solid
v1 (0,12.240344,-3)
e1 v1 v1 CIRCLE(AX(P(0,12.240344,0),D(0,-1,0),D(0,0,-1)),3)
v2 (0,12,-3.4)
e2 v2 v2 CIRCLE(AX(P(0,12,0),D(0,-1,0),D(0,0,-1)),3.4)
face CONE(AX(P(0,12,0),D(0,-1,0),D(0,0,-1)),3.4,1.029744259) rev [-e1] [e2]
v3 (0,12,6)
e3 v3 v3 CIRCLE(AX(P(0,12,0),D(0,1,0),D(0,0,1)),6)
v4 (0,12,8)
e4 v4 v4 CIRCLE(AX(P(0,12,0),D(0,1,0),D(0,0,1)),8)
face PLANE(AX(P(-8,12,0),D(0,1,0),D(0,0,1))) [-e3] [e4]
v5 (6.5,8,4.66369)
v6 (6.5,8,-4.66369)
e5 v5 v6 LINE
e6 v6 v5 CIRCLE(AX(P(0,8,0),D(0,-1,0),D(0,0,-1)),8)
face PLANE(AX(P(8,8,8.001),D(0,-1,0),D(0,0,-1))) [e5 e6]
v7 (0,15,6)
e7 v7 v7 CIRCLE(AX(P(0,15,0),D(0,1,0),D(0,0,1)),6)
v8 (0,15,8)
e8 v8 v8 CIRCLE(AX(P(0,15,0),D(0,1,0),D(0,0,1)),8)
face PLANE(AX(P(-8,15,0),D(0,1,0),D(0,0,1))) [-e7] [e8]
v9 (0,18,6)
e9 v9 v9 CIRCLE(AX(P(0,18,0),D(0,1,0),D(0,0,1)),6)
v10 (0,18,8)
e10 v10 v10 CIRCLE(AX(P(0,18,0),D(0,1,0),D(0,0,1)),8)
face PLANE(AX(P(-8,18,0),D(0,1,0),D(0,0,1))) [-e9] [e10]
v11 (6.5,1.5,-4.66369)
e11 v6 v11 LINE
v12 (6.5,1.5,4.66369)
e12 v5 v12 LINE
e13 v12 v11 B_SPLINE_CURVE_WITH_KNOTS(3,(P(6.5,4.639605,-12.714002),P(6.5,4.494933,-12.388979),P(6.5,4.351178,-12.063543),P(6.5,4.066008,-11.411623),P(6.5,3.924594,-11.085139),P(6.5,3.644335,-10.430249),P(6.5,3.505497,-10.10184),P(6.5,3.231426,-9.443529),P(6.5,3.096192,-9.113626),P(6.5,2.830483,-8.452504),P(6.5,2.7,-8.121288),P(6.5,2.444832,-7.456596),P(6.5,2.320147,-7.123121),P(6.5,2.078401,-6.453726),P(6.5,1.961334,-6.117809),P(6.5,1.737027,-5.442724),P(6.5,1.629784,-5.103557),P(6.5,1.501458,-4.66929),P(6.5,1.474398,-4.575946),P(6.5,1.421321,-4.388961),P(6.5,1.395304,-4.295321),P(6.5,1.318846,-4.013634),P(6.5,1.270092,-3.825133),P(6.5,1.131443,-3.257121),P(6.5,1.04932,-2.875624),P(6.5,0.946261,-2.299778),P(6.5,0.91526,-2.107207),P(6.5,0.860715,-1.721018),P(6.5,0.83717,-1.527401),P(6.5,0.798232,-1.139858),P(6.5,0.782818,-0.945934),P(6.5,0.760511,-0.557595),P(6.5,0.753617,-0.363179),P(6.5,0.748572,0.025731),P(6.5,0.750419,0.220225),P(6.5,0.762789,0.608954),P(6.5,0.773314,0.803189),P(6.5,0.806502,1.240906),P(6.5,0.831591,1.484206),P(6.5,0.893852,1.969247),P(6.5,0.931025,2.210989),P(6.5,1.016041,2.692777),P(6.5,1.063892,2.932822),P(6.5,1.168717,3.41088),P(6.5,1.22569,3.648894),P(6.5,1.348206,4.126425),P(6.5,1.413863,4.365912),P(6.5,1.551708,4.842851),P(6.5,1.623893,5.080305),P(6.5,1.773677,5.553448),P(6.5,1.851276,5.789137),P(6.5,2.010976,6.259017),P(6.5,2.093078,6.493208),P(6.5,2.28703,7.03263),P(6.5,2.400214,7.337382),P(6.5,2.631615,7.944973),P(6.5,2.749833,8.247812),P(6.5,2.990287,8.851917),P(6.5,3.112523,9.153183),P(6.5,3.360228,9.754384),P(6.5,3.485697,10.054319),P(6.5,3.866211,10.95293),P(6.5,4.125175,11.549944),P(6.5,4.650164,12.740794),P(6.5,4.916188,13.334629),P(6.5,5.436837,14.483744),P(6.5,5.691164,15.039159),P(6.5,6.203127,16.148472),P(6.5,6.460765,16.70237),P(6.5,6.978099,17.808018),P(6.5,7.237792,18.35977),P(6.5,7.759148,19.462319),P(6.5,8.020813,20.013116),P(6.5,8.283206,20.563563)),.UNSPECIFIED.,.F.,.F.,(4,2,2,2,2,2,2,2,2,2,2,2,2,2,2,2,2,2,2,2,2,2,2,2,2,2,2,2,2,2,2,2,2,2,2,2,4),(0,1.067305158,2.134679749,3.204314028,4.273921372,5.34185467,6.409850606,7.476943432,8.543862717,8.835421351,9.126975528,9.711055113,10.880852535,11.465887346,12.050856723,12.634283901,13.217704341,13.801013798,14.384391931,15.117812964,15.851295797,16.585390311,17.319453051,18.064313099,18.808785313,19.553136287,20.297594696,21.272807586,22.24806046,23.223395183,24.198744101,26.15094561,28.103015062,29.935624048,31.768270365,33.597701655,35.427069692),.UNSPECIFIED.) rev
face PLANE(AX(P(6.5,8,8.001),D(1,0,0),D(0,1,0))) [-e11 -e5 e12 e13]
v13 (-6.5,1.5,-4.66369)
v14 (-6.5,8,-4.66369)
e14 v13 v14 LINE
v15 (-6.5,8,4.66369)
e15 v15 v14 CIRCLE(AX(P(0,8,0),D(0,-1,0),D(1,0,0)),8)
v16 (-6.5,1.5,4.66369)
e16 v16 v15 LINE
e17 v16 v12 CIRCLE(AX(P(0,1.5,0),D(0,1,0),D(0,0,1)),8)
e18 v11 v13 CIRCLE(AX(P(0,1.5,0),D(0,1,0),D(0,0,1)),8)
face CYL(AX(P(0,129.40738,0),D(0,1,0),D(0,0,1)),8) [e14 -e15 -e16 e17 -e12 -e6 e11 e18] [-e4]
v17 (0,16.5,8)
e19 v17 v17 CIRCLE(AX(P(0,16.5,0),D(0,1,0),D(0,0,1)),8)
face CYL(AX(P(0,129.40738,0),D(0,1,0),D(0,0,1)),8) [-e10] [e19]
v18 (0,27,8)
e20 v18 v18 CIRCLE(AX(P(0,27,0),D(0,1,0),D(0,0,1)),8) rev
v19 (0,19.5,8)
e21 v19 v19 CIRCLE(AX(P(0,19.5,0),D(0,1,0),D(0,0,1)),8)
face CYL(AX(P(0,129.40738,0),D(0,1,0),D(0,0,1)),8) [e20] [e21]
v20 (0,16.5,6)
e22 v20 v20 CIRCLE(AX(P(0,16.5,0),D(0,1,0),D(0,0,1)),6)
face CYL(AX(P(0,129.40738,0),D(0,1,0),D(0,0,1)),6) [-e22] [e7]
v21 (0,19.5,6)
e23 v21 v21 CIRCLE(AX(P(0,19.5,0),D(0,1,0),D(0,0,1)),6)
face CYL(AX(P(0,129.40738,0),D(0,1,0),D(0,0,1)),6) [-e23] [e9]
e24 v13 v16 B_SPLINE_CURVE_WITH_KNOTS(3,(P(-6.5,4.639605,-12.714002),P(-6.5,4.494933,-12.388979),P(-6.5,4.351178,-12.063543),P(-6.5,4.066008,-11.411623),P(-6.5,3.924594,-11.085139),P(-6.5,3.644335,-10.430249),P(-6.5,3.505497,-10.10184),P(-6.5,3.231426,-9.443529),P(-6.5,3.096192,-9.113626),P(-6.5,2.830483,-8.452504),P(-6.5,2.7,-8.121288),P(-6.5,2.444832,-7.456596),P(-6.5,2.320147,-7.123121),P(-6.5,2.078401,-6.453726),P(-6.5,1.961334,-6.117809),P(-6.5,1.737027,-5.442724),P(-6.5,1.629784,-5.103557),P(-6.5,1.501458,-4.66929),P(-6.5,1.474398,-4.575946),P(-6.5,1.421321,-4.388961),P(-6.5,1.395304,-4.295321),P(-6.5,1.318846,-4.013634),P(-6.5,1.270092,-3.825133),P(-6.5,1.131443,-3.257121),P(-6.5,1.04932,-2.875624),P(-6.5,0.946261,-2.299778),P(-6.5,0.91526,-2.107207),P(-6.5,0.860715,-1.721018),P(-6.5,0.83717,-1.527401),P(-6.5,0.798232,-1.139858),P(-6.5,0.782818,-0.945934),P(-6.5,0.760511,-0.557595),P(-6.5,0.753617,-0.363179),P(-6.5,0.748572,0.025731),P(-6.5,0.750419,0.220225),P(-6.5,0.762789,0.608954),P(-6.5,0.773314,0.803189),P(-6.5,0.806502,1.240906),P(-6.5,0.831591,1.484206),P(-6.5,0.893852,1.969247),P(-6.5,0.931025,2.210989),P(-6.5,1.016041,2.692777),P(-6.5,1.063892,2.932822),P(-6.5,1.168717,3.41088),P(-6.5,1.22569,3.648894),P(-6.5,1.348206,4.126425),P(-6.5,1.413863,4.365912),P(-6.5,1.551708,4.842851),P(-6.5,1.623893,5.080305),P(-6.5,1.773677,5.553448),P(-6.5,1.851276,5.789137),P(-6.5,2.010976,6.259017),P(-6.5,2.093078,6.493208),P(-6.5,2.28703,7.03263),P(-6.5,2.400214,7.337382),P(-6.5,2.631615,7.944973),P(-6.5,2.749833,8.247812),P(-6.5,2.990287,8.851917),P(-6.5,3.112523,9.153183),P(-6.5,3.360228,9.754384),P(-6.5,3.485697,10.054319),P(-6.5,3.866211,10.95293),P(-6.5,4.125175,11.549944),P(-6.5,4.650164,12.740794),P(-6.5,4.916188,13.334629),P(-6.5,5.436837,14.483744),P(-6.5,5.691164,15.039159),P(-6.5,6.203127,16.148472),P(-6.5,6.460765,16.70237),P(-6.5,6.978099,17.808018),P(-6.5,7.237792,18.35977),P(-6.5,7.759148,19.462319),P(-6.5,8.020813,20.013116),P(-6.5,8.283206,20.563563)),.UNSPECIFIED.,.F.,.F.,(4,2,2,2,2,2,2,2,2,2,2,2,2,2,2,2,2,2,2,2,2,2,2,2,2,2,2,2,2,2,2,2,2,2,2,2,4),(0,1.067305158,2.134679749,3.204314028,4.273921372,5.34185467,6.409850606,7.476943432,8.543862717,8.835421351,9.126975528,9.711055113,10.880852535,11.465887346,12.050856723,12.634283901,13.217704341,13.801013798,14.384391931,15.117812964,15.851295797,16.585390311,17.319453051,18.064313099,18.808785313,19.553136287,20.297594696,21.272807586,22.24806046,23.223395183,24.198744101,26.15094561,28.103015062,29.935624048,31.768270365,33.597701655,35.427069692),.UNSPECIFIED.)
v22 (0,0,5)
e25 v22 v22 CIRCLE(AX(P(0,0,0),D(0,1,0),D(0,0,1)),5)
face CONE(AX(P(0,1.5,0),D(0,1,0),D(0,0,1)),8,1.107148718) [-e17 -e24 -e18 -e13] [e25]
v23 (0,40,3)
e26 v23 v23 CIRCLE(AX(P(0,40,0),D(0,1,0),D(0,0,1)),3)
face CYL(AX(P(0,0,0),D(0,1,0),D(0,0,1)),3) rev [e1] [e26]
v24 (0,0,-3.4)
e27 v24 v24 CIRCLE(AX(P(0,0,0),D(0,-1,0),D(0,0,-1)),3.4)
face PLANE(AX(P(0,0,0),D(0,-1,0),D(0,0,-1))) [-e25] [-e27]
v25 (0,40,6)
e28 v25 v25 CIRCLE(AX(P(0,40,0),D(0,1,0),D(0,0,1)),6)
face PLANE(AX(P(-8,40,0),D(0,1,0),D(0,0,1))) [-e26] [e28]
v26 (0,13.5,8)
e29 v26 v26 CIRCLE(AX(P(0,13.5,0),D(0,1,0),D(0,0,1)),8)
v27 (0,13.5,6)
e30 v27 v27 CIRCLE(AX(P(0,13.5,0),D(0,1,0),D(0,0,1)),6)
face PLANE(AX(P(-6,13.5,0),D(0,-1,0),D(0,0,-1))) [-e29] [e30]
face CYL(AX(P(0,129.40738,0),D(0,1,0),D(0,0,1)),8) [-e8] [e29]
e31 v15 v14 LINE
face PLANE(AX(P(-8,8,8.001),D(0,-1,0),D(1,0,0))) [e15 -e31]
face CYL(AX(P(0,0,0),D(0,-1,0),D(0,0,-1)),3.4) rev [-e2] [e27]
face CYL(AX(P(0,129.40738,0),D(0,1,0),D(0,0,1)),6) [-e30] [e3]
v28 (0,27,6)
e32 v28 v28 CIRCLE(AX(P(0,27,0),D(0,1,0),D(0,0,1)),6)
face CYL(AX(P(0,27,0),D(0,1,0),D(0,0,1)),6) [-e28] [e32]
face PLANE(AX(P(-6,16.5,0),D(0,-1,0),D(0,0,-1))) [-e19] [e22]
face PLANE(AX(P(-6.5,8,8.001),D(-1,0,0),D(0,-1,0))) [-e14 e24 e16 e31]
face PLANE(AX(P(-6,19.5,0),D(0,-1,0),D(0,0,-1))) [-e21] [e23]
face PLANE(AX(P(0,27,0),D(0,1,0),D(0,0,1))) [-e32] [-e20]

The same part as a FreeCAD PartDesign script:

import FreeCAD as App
import Part
import Sketcher
from FreeCAD import Vector

doc = App.newDocument("Part")
body = doc.addObject("PartDesign::Body", "Body")

# Sketch on XY plane
sketch1 = body.newObject("Sketcher::SketchObject", "Sketch")
sketch1.AttachmentSupport = (doc.getObject("XY_Plane"), [""])
sketch1.MapMode = "FlatFace"
sketch1.addGeometry(Part.LineSegment(Vector(-5, 0, 0), Vector(0, 0, 0)), False)
sketch1.addGeometry(Part.LineSegment(Vector(0, 0, 0), Vector(0, 40, 0)), False)
sketch1.addGeometry(Part.LineSegment(Vector(0, 40, 0), Vector(-8, 40, 0)), False)
sketch1.addGeometry(Part.LineSegment(Vector(-8, 40, 0), Vector(-8, 19.5, 0)), False)
sketch1.addGeometry(Part.LineSegment(Vector(-8, 19.5, 0), Vector(-6, 19.5, 0)), False)
sketch1.addGeometry(Part.LineSegment(Vector(-6, 19.5, 0), Vector(-6, 18, 0)), False)
sketch1.addGeometry(Part.LineSegment(Vector(-6, 18, 0), Vector(-8, 18, 0)), False)
sketch1.addGeometry(Part.LineSegment(Vector(-8, 18, 0), Vector(-8, 16.5, 0)), False)
sketch1.addGeometry(Part.LineSegment(Vector(-8, 16.5, 0), Vector(-6, 16.5, 0)), False)
sketch1.addGeometry(Part.LineSegment(Vector(-6, 16.5, 0), Vector(-6, 15, 0)), False)
sketch1.addGeometry(Part.LineSegment(Vector(-6, 15, 0), Vector(-8, 15, 0)), False)
sketch1.addGeometry(Part.LineSegment(Vector(-8, 15, 0), Vector(-8, 13.5, 0)), False)
sketch1.addGeometry(Part.LineSegment(Vector(-8, 13.5, 0), Vector(-6, 13.5, 0)), False)
sketch1.addGeometry(Part.LineSegment(Vector(-6, 13.5, 0), Vector(-6, 12, 0)), False)
sketch1.addGeometry(Part.LineSegment(Vector(-6, 12, 0), Vector(-8, 12, 0)), False)
sketch1.addGeometry(Part.LineSegment(Vector(-8, 12, 0), Vector(-8, 1.5, 0)), False)
sketch1.addGeometry(Part.LineSegment(Vector(-8, 1.5, 0), Vector(-5, 0, 0)), False)
sketch1.addConstraint(Sketcher.Constraint("Coincident", 0, 2, 1, 1))
sketch1.addConstraint(Sketcher.Constraint("Coincident", 1, 2, 2, 1))
sketch1.addConstraint(Sketcher.Constraint("Coincident", 2, 2, 3, 1))
sketch1.addConstraint(Sketcher.Constraint("Coincident", 3, 2, 4, 1))
sketch1.addConstraint(Sketcher.Constraint("Coincident", 4, 2, 5, 1))
sketch1.addConstraint(Sketcher.Constraint("Coincident", 5, 2, 6, 1))
sketch1.addConstraint(Sketcher.Constraint("Coincident", 6, 2, 7, 1))
sketch1.addConstraint(Sketcher.Constraint("Coincident", 7, 2, 8, 1))
sketch1.addConstraint(Sketcher.Constraint("Coincident", 8, 2, 9, 1))
sketch1.addConstraint(Sketcher.Constraint("Coincident", 9, 2, 10, 1))
sketch1.addConstraint(Sketcher.Constraint("Coincident", 10, 2, 11, 1))
sketch1.addConstraint(Sketcher.Constraint("Coincident", 11, 2, 12, 1))
sketch1.addConstraint(Sketcher.Constraint("Coincident", 12, 2, 13, 1))
sketch1.addConstraint(Sketcher.Constraint("Coincident", 13, 2, 14, 1))
sketch1.addConstraint(Sketcher.Constraint("Coincident", 14, 2, 15, 1))
sketch1.addConstraint(Sketcher.Constraint("Coincident", 15, 2, 16, 1))
sketch1.addConstraint(Sketcher.Constraint("Coincident", 16, 2, 0, 1))
sketch1.addConstraint(Sketcher.Constraint("Horizontal", 0))
sketch1.addConstraint(Sketcher.Constraint("Vertical", 1))
sketch1.addConstraint(Sketcher.Constraint("Horizontal", 2))
sketch1.addConstraint(Sketcher.Constraint("Vertical", 3))
sketch1.addConstraint(Sketcher.Constraint("Horizontal", 4))
sketch1.addConstraint(Sketcher.Constraint("Vertical", 5))
sketch1.addConstraint(Sketcher.Constraint("Horizontal", 6))
sketch1.addConstraint(Sketcher.Constraint("Vertical", 7))
sketch1.addConstraint(Sketcher.Constraint("Horizontal", 8))
sketch1.addConstraint(Sketcher.Constraint("Vertical", 9))
sketch1.addConstraint(Sketcher.Constraint("Horizontal", 10))
sketch1.addConstraint(Sketcher.Constraint("Vertical", 11))
sketch1.addConstraint(Sketcher.Constraint("Horizontal", 12))
sketch1.addConstraint(Sketcher.Constraint("Vertical", 13))
sketch1.addConstraint(Sketcher.Constraint("Horizontal", 14))
sketch1.addConstraint(Sketcher.Constraint("Vertical", 15))
sketch1.addConstraint(Sketcher.Constraint("Coincident", 0, 2, -1, 1))
sketch1.addConstraint(Sketcher.Constraint("Vertical", 3, 2, 6, 2))
sketch1.addConstraint(Sketcher.Constraint("Vertical", 5, 2, 8, 2))
sketch1.addConstraint(Sketcher.Constraint("Vertical", 7, 2, 10, 2))
sketch1.addConstraint(Sketcher.Constraint("Vertical", 9, 2, 12, 2))
sketch1.addConstraint(Sketcher.Constraint("Vertical", 11, 2, 14, 2))
sketch1.addConstraint(Sketcher.Constraint("Equal", 5, 7))
sketch1.addConstraint(Sketcher.Constraint("Equal", 7, 9))
sketch1.addConstraint(Sketcher.Constraint("Equal", 9, 11))
sketch1.addConstraint(Sketcher.Constraint("Equal", 11, 13))
sketch1.addConstraint(Sketcher.Constraint("DistanceX", 0, 1, 0, 2, 5.0))
sketch1.addConstraint(Sketcher.Constraint("DistanceX", 2, 2, 2, 1, 8.0))
sketch1.addConstraint(Sketcher.Constraint("DistanceX", 4, 1, 4, 2, 2.0))
sketch1.addConstraint(Sketcher.Constraint("DistanceY", 1, 1, 1, 2, 40.0))
sketch1.addConstraint(Sketcher.Constraint("DistanceY", 3, 2, 3, 1, 20.5))
sketch1.addConstraint(Sketcher.Constraint("DistanceY", 5, 2, 5, 1, 1.5))
sketch1.addConstraint(Sketcher.Constraint("DistanceY", 15, 2, 15, 1, 10.5))
revolution = body.newObject("PartDesign::Revolution", "Revolution")
revolution.Profile = sketch1
revolution.ReferenceAxis = (sketch1, ["V_Axis"])
revolution.Angle = 360

# Sketch on XY plane
sketch2 = body.newObject("Sketcher::SketchObject", "Sketch001")
sketch2.AttachmentSupport = (doc.getObject("XY_Plane"), [""])
sketch2.MapMode = "FlatFace"
sketch2.addGeometry(Part.LineSegment(Vector(-8, 8, 0), Vector(-8, 0, 0)), False)
sketch2.addGeometry(Part.LineSegment(Vector(-8, 0, 0), Vector(-6.5, 0, 0)), False)
sketch2.addGeometry(Part.LineSegment(Vector(-6.5, 0, 0), Vector(-6.5, 8, 0)), False)
sketch2.addGeometry(Part.LineSegment(Vector(-6.5, 8, 0), Vector(-8, 8, 0)), False)
sketch2.addConstraint(Sketcher.Constraint("Coincident", 0, 2, 1, 1))
sketch2.addConstraint(Sketcher.Constraint("Coincident", 1, 2, 2, 1))
sketch2.addConstraint(Sketcher.Constraint("Coincident", 2, 2, 3, 1))
sketch2.addConstraint(Sketcher.Constraint("Coincident", 3, 2, 0, 1))
sketch2.addConstraint(Sketcher.Constraint("Vertical", 0))
sketch2.addConstraint(Sketcher.Constraint("Horizontal", 1))
sketch2.addConstraint(Sketcher.Constraint("Vertical", 2))
sketch2.addConstraint(Sketcher.Constraint("Horizontal", 3))
sketch2.addConstraint(Sketcher.Constraint("PointOnObject", 0, 2, -1))
sketch2.addConstraint(Sketcher.Constraint("DistanceY", 0, 2, 0, 1, 8.0))
sketch2.addConstraint(Sketcher.Constraint("DistanceX", 1, 1, 1, 2, 1.5))
sketch2.addConstraint(Sketcher.Constraint("DistanceX", 0, 2, -1, 1, 8.0))
pocket1 = body.newObject("PartDesign::Pocket", "Pocket")
pocket1.Profile = sketch2
pocket1.Length = 4.66369

# Sketch on XY plane
sketch3 = body.newObject("Sketcher::SketchObject", "Sketch002")
sketch3.AttachmentSupport = (doc.getObject("XY_Plane"), [""])
sketch3.MapMode = "FlatFace"
sketch3.addGeometry(Part.LineSegment(Vector(6.5, 8, 0), Vector(6.5, 0, 0)), False)
sketch3.addGeometry(Part.LineSegment(Vector(6.5, 0, 0), Vector(8, 0, 0)), False)
sketch3.addGeometry(Part.LineSegment(Vector(8, 0, 0), Vector(8, 8, 0)), False)
sketch3.addGeometry(Part.LineSegment(Vector(8, 8, 0), Vector(6.5, 8, 0)), False)
sketch3.addConstraint(Sketcher.Constraint("Coincident", 0, 2, 1, 1))
sketch3.addConstraint(Sketcher.Constraint("Coincident", 1, 2, 2, 1))
sketch3.addConstraint(Sketcher.Constraint("Coincident", 2, 2, 3, 1))
sketch3.addConstraint(Sketcher.Constraint("Coincident", 3, 2, 0, 1))
sketch3.addConstraint(Sketcher.Constraint("Vertical", 0))
sketch3.addConstraint(Sketcher.Constraint("Horizontal", 1))
sketch3.addConstraint(Sketcher.Constraint("Vertical", 2))
sketch3.addConstraint(Sketcher.Constraint("Horizontal", 3))
sketch3.addConstraint(Sketcher.Constraint("PointOnObject", 0, 2, -1))
sketch3.addConstraint(Sketcher.Constraint("DistanceY", 0, 2, 0, 1, 8.0))
sketch3.addConstraint(Sketcher.Constraint("DistanceX", 1, 1, 1, 2, 1.5))
sketch3.addConstraint(Sketcher.Constraint("DistanceX", -1, 1, 1, 2, 8.0))
pocket2 = body.newObject("PartDesign::Pocket", "Pocket001")
pocket2.Profile = sketch3
pocket2.Length = 4.66369

# Sketch on XY plane
sketch4 = body.newObject("Sketcher::SketchObject", "Sketch003")
sketch4.AttachmentSupport = (doc.getObject("XY_Plane"), [""])
sketch4.MapMode = "FlatFace"
sketch4.addGeometry(Part.LineSegment(Vector(-8, 8, 0), Vector(-8, 0, 0)), False)
sketch4.addGeometry(Part.LineSegment(Vector(-8, 0, 0), Vector(-6.5, 0, 0)), False)
sketch4.addGeometry(Part.LineSegment(Vector(-6.5, 0, 0), Vector(-6.5, 8, 0)), False)
sketch4.addGeometry(Part.LineSegment(Vector(-6.5, 8, 0), Vector(-8, 8, 0)), False)
sketch4.addConstraint(Sketcher.Constraint("Coincident", 0, 2, 1, 1))
sketch4.addConstraint(Sketcher.Constraint("Coincident", 1, 2, 2, 1))
sketch4.addConstraint(Sketcher.Constraint("Coincident", 2, 2, 3, 1))
sketch4.addConstraint(Sketcher.Constraint("Coincident", 3, 2, 0, 1))
sketch4.addConstraint(Sketcher.Constraint("Vertical", 0))
sketch4.addConstraint(Sketcher.Constraint("Horizontal", 1))
sketch4.addConstraint(Sketcher.Constraint("Vertical", 2))
sketch4.addConstraint(Sketcher.Constraint("Horizontal", 3))
sketch4.addConstraint(Sketcher.Constraint("PointOnObject", 0, 2, -1))
sketch4.addConstraint(Sketcher.Constraint("DistanceY", 0, 2, 0, 1, 8.0))
sketch4.addConstraint(Sketcher.Constraint("DistanceX", 1, 1, 1, 2, 1.5))
sketch4.addConstraint(Sketcher.Constraint("DistanceX", 0, 2, -1, 1, 8.0))
pocket3 = body.newObject("PartDesign::Pocket", "Pocket002")
pocket3.Profile = sketch4
pocket3.Length = 4.66369
pocket3.Reversed = True

# Sketch on XY plane
sketch5 = body.newObject("Sketcher::SketchObject", "Sketch004")
sketch5.AttachmentSupport = (doc.getObject("XY_Plane"), [""])
sketch5.MapMode = "FlatFace"
sketch5.addGeometry(Part.LineSegment(Vector(6.5, 8, 0), Vector(6.5, 0, 0)), False)
sketch5.addGeometry(Part.LineSegment(Vector(6.5, 0, 0), Vector(8, 0, 0)), False)
sketch5.addGeometry(Part.LineSegment(Vector(8, 0, 0), Vector(8, 8, 0)), False)
sketch5.addGeometry(Part.LineSegment(Vector(8, 8, 0), Vector(6.5, 8, 0)), False)
sketch5.addConstraint(Sketcher.Constraint("Coincident", 0, 2, 1, 1))
sketch5.addConstraint(Sketcher.Constraint("Coincident", 1, 2, 2, 1))
sketch5.addConstraint(Sketcher.Constraint("Coincident", 2, 2, 3, 1))
sketch5.addConstraint(Sketcher.Constraint("Coincident", 3, 2, 0, 1))
sketch5.addConstraint(Sketcher.Constraint("Vertical", 0))
sketch5.addConstraint(Sketcher.Constraint("Horizontal", 1))
sketch5.addConstraint(Sketcher.Constraint("Vertical", 2))
sketch5.addConstraint(Sketcher.Constraint("Horizontal", 3))
sketch5.addConstraint(Sketcher.Constraint("PointOnObject", 0, 2, -1))
sketch5.addConstraint(Sketcher.Constraint("DistanceY", 0, 2, 0, 1, 8.0))
sketch5.addConstraint(Sketcher.Constraint("DistanceX", 1, 1, 1, 2, 1.5))
sketch5.addConstraint(Sketcher.Constraint("DistanceX", -1, 1, 1, 2, 8.0))
pocket4 = body.newObject("PartDesign::Pocket", "Pocket003")
pocket4.Profile = sketch5
pocket4.Length = 4.66369
pocket4.Reversed = True

# Sketch on XZ plane
sketch6 = body.newObject("Sketcher::SketchObject", "Sketch005")
sketch6.AttachmentSupport = (doc.getObject("XZ_Plane"), [""])
sketch6.MapMode = "FlatFace"
sketch6.AttachmentOffset = App.Placement(Vector(0, 0, -40), App.Rotation())
sketch6.addGeometry(Part.Circle(Vector(0, 0, 0), Vector(0, 0, 1), 3), False)
sketch6.addConstraint(Sketcher.Constraint("Coincident", 0, 3, -1, 1))
sketch6.addConstraint(Sketcher.Constraint("Diameter", 0, 6.0))
pocket5 = body.newObject("PartDesign::Pocket", "Pocket004")
pocket5.Profile = sketch6
pocket5.Type = "ThroughAll"
pocket5.Reversed = True

# Sketch on XZ plane
sketch7 = body.newObject("Sketcher::SketchObject", "Sketch006")
sketch7.AttachmentSupport = (doc.getObject("XZ_Plane"), [""])
sketch7.MapMode = "FlatFace"
sketch7.addGeometry(Part.Circle(Vector(0, 0, 0), Vector(0, 0, 1), 3.4), False)
sketch7.addConstraint(Sketcher.Constraint("Coincident", 0, 3, -1, 1))
sketch7.addConstraint(Sketcher.Constraint("Diameter", 0, 6.8))
doc.recompute()
hole = body.newObject("PartDesign::Hole", "Hole")
hole.Profile = sketch7
hole.ThreadType = "None"
hole.Diameter = 6.8
hole.DepthType = "Dimension"
hole.Depth = 12
hole.DrillPoint = "Angled"
hole.DrillPointAngle = 118

# Sketch on XZ plane
sketch8 = body.newObject("Sketcher::SketchObject", "Sketch007")
sketch8.AttachmentSupport = (doc.getObject("XZ_Plane"), [""])
sketch8.MapMode = "FlatFace"
sketch8.AttachmentOffset = App.Placement(Vector(0, 0, -40), App.Rotation())
sketch8.addGeometry(Part.LineSegment(Vector(-13.596, -13.596, 0), Vector(-13.596, 13.596, 0)), False)
sketch8.addGeometry(Part.LineSegment(Vector(-13.596, 13.596, 0), Vector(13.596, 13.596, 0)), False)
sketch8.addGeometry(Part.LineSegment(Vector(13.596, 13.596, 0), Vector(13.596, -13.596, 0)), False)
sketch8.addGeometry(Part.LineSegment(Vector(13.596, -13.596, 0), Vector(-13.596, -13.596, 0)), False)
sketch8.addGeometry(Part.Circle(Vector(0, 0, 0), Vector(0, 0, 1), 6), False)
sketch8.addConstraint(Sketcher.Constraint("Coincident", 0, 2, 1, 1))
sketch8.addConstraint(Sketcher.Constraint("Coincident", 1, 2, 2, 1))
sketch8.addConstraint(Sketcher.Constraint("Coincident", 2, 2, 3, 1))
sketch8.addConstraint(Sketcher.Constraint("Coincident", 3, 2, 0, 1))
sketch8.addConstraint(Sketcher.Constraint("Vertical", 0))
sketch8.addConstraint(Sketcher.Constraint("Horizontal", 1))
sketch8.addConstraint(Sketcher.Constraint("Vertical", 2))
sketch8.addConstraint(Sketcher.Constraint("Horizontal", 3))
sketch8.addConstraint(Sketcher.Constraint("Coincident", 4, 3, -1, 1))
sketch8.addConstraint(Sketcher.Constraint("Symmetric", 0, 2, 2, 2, -1, 1))
sketch8.addConstraint(Sketcher.Constraint("Equal", 3, 0))
sketch8.addConstraint(Sketcher.Constraint("Diameter", 4, 12.0))
sketch8.addConstraint(Sketcher.Constraint("DistanceX", 1, 1, 1, 2, 27.192))
pocket6 = body.newObject("PartDesign::Pocket", "Pocket005")
pocket6.Profile = sketch8
pocket6.Length = 13
pocket6.Reversed = True

doc.recompute()
